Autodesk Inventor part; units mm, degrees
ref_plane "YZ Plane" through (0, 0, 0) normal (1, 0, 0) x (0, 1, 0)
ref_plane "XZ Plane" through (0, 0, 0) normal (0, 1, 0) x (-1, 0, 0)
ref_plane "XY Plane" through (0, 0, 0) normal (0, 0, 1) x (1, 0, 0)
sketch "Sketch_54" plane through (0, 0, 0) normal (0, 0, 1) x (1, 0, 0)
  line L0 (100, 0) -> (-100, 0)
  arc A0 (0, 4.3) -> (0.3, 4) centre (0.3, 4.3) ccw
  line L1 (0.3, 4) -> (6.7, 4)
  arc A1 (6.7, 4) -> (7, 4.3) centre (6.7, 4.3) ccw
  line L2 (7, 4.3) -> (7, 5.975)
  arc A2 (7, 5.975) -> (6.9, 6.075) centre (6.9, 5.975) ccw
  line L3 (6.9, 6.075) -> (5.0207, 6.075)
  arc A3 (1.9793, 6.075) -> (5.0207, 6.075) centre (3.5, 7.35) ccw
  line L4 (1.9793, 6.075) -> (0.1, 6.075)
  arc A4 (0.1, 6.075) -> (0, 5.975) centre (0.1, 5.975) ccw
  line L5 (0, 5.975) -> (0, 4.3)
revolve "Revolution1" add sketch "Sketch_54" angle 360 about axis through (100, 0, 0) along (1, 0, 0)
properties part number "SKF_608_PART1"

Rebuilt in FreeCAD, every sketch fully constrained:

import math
import FreeCAD as App
import Part
import Sketcher

V = App.Vector
Q = App.Units.Quantity

doc = App.newDocument("Part")
body = doc.addObject("PartDesign::Body", "Body")

# Sketch on XY plane
sketch1 = body.newObject("Sketcher::SketchObject", "Sketch")
sketch1.AttachmentSupport = (doc.getObject("XY_Plane"), [""])
sketch1.MapMode = "FlatFace"
sketch1.addGeometry(Part.LineSegment(V(0, 5.975, 0), V(0, 4.3, 0)), False)
sketch1.addGeometry(Part.ArcOfCircle(Part.Circle(V(0.3, 4.3, 0), V(0, 0, 1), 0.3), math.radians(180), math.radians(270)), False)
sketch1.addGeometry(Part.LineSegment(V(0.3, 4, 0), V(6.7, 4, 0)), False)
sketch1.addGeometry(Part.ArcOfCircle(Part.Circle(V(6.7, 4.3, 0), V(0, 0, 1), 0.3), math.radians(-90), math.radians(0)), False)
sketch1.addGeometry(Part.LineSegment(V(7, 4.3, 0), V(7, 5.975, 0)), False)
sketch1.addGeometry(Part.ArcOfCircle(Part.Circle(V(6.9, 5.975, 0), V(0, 0, 1), 0.1), math.radians(0), math.radians(90)), False)
sketch1.addGeometry(Part.LineSegment(V(6.9, 6.075, 0), V(5.0207, 6.075, 0)), False)
sketch1.addGeometry(Part.ArcOfCircle(Part.Circle(V(3.5, 7.35, 0), V(0, 0, 1), 1.984478), math.radians(-140.022533), math.radians(-39.977467)), False)
sketch1.addGeometry(Part.LineSegment(V(1.9793, 6.075, 0), V(0.1, 6.075, 0)), False)
sketch1.addGeometry(Part.ArcOfCircle(Part.Circle(V(0.1, 5.975, 0), V(0, 0, 1), 0.1), math.radians(90), math.radians(180)), False)
sketch1.addConstraint(Sketcher.Constraint("Tangent", 0, 2, 1, 1))
sketch1.addConstraint(Sketcher.Constraint("Tangent", 1, 2, 2, 1))
sketch1.addConstraint(Sketcher.Constraint("Tangent", 2, 2, 3, 1))
sketch1.addConstraint(Sketcher.Constraint("Tangent", 3, 2, 4, 1))
sketch1.addConstraint(Sketcher.Constraint("Tangent", 4, 2, 5, 1))
sketch1.addConstraint(Sketcher.Constraint("Tangent", 5, 2, 6, 1))
sketch1.addConstraint(Sketcher.Constraint("Coincident", 6, 2, 7, 2))
sketch1.addConstraint(Sketcher.Constraint("Coincident", 7, 1, 8, 1))
sketch1.addConstraint(Sketcher.Constraint("Tangent", 8, 2, 9, 1))
sketch1.addConstraint(Sketcher.Constraint("Tangent", 9, 2, 0, 1))
sketch1.addConstraint(Sketcher.Constraint("Vertical", 0))
sketch1.addConstraint(Sketcher.Constraint("Horizontal", 2))
sketch1.addConstraint(Sketcher.Constraint("Vertical", 4))
sketch1.addConstraint(Sketcher.Constraint("Horizontal", 6))
sketch1.addConstraint(Sketcher.Constraint("Horizontal", 8))
sketch1.addConstraint(Sketcher.Constraint("Equal", 1, 3))
sketch1.addConstraint(Sketcher.Constraint("Equal", 5, 9))
sketch1.addConstraint(Sketcher.Constraint("PointOnObject", 0, 2, -2))
sketch1.addConstraint(Sketcher.Constraint("Horizontal", 5, 3, 9, 3))
sketch1.addConstraint(Sketcher.Constraint("Equal", 6, 8))
sketch1.addConstraint(Sketcher.Constraint("Radius", 1, Q("0.3 mm")))
sketch1.addConstraint(Sketcher.Constraint("Radius", 5, Q("0.1 mm")))
sketch1.addConstraint(Sketcher.Constraint("DistanceX", 2, 1, 2, 2, Q("6.4 mm")))
sketch1.addConstraint(Sketcher.Constraint("DistanceY", -1, 1, 1, 2, Q("4 mm")))
sketch1.addConstraint(Sketcher.Constraint("Radius", 7, Q("1.9845 mm")))
sketch1.addConstraint(Sketcher.Constraint("DistanceY", 0, 2, 0, 1, Q("1.675 mm")))
sketch1.addConstraint(Sketcher.Constraint("DistanceY", -1, 1, 7, 3, Q("7.35 mm")))
revolution = body.newObject("PartDesign::Revolution", "Revolution")
revolution.Profile = sketch1
revolution.ReferenceAxis = (sketch1, ["H_Axis"])
revolution.Angle = 360

doc.recompute()
